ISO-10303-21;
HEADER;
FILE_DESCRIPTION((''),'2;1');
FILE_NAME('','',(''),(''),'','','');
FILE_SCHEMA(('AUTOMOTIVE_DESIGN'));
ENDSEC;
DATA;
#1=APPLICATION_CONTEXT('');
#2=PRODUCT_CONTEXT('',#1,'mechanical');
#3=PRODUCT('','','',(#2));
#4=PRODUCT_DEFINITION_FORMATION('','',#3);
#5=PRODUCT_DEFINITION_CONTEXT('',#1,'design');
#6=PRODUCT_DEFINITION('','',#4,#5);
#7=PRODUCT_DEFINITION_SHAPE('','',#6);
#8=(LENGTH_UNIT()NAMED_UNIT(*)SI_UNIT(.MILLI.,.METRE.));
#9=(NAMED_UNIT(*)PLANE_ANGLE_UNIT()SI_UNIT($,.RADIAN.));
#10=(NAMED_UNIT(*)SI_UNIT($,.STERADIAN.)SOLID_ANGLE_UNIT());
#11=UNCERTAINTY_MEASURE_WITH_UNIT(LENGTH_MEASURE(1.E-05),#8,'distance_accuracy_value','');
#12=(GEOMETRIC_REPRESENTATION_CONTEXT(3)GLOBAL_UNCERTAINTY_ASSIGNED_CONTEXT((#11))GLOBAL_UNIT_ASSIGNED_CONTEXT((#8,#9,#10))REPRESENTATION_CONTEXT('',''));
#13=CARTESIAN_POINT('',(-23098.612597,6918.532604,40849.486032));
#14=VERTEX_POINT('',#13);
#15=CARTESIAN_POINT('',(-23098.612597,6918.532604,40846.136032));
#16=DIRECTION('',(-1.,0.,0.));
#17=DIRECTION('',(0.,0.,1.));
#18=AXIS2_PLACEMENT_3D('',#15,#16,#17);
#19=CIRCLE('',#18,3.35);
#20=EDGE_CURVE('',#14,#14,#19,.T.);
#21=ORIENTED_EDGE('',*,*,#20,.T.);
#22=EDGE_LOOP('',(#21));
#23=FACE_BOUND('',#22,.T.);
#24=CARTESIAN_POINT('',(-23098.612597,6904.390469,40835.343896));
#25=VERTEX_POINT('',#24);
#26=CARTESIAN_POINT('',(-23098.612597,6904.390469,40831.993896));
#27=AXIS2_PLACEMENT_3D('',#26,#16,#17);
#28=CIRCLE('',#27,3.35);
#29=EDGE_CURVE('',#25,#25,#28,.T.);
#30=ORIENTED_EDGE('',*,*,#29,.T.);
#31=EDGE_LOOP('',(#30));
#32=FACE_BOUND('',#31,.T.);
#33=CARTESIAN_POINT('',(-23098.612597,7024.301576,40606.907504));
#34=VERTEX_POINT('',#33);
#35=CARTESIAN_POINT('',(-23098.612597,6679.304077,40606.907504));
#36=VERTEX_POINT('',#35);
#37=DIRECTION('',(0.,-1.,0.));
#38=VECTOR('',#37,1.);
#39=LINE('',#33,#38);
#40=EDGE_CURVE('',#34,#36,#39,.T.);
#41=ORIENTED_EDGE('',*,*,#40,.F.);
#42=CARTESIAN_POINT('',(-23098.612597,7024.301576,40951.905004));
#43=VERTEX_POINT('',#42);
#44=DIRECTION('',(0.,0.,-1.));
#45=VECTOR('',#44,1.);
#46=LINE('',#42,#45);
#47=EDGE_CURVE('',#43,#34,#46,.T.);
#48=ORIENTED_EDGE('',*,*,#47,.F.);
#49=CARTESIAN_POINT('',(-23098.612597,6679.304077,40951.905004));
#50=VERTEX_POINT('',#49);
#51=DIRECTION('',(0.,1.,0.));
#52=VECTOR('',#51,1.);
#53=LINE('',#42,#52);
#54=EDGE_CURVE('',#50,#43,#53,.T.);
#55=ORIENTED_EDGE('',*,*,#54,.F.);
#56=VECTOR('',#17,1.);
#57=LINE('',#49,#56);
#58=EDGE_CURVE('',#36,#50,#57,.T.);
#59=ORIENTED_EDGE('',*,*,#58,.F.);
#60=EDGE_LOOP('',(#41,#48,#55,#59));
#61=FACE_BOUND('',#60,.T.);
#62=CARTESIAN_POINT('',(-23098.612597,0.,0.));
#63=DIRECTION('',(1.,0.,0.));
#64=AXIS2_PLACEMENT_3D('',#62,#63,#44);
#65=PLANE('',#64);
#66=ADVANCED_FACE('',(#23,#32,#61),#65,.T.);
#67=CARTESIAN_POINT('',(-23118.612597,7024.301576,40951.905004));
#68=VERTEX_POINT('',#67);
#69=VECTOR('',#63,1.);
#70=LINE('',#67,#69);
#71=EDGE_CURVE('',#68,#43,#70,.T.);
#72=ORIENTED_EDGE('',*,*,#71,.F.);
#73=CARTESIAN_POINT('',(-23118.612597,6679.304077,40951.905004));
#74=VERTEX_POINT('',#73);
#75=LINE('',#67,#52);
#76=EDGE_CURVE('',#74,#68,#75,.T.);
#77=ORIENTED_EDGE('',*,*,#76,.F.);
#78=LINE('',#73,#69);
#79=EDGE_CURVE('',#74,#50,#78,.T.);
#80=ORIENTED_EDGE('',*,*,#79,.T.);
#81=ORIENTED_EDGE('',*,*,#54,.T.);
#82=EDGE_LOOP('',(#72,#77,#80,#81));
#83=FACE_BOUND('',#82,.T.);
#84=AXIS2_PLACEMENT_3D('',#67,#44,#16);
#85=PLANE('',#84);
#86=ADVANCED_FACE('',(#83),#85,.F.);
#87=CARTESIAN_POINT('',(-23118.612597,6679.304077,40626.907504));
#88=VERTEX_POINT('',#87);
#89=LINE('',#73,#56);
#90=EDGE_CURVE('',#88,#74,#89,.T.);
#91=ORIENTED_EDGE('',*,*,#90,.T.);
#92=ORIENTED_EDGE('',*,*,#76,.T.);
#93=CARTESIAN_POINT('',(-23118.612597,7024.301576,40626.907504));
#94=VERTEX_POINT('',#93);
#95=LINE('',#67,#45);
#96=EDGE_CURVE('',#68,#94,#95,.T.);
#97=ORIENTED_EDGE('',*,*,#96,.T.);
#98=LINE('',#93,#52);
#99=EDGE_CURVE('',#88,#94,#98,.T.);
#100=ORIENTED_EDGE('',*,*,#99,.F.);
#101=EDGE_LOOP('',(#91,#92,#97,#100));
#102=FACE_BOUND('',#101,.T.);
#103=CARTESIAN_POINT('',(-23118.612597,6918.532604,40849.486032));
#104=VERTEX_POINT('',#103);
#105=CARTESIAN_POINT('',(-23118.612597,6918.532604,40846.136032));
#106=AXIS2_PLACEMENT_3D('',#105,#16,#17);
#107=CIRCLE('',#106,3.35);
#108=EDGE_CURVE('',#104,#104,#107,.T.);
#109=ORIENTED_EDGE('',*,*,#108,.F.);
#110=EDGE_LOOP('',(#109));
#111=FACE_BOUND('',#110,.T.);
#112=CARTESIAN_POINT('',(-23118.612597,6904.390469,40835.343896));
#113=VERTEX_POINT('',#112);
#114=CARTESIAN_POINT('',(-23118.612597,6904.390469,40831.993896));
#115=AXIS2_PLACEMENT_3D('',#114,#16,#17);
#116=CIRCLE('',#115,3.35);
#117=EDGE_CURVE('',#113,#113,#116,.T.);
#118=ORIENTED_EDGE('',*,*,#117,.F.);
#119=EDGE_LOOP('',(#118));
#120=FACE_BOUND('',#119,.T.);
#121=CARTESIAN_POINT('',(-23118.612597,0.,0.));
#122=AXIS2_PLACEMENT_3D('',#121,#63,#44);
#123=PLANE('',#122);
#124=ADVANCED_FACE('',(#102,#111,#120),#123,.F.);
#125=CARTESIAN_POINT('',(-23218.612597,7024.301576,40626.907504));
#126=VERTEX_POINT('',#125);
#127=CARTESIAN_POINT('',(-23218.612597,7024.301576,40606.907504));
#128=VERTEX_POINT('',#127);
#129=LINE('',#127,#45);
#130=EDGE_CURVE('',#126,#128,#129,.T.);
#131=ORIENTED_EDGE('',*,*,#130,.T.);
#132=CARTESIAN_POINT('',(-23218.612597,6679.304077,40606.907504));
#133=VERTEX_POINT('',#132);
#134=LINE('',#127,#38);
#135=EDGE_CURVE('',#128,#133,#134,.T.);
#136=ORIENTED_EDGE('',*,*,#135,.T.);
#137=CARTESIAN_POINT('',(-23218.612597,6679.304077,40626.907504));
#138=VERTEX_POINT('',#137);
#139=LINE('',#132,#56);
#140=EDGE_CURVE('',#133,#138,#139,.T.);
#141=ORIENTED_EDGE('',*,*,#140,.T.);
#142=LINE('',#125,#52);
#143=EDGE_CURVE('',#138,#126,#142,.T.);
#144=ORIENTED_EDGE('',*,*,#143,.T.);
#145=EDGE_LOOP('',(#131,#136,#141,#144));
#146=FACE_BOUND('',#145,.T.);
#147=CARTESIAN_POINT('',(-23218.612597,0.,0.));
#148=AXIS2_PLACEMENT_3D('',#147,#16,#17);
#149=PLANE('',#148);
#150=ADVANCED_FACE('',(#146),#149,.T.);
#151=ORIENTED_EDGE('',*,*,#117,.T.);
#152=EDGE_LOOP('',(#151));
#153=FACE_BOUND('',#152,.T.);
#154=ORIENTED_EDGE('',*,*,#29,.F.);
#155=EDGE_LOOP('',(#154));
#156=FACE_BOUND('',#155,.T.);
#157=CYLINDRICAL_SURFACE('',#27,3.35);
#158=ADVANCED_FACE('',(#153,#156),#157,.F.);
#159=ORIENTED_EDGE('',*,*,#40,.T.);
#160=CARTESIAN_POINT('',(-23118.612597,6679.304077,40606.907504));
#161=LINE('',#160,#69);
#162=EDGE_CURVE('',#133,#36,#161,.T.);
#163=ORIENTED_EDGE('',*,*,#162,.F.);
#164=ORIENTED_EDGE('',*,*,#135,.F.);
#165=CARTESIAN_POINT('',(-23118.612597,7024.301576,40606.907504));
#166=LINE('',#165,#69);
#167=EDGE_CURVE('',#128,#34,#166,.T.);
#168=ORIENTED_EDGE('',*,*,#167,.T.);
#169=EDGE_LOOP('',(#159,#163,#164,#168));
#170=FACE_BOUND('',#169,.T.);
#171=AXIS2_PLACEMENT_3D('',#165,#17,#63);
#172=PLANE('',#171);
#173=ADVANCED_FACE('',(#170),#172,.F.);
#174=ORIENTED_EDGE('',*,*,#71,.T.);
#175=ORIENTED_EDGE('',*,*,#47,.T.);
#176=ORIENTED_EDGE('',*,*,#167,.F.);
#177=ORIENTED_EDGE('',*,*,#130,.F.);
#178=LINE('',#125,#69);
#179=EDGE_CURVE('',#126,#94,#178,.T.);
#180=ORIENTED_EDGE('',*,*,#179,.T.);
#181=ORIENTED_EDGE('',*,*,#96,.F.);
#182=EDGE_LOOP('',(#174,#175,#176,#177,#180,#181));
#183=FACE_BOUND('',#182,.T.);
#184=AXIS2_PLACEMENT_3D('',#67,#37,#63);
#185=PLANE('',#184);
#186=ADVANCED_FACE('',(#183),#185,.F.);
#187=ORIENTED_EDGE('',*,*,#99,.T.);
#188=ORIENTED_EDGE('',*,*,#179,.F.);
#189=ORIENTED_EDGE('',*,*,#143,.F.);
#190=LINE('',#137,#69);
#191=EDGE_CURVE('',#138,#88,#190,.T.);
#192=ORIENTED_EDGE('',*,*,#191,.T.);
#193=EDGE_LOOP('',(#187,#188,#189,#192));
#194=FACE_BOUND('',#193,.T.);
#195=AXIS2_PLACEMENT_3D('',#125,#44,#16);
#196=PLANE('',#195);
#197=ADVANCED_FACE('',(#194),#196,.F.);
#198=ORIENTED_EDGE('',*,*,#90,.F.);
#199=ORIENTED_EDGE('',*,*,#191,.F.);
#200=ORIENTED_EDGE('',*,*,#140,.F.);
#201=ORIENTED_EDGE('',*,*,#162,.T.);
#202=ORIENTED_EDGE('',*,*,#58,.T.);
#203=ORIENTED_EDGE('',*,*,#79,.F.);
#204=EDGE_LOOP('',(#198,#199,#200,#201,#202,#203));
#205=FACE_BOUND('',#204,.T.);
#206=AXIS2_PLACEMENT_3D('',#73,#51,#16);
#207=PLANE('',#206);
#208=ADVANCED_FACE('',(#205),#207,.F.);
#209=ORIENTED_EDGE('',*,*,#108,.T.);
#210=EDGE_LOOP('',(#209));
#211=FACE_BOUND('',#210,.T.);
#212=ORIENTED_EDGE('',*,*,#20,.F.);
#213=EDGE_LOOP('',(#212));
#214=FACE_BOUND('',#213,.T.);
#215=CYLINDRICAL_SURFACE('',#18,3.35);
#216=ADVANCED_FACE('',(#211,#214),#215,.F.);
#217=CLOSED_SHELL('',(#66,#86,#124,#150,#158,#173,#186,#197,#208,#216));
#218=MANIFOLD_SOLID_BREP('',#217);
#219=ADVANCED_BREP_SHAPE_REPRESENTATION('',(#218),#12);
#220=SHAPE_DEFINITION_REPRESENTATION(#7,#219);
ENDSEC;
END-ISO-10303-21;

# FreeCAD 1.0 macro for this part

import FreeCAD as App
import Part
import Sketcher

V = App.Vector
Q = App.Units.Quantity

doc = App.newDocument("Part")
body = doc.addObject("PartDesign::Body", "Body")

# Sketch on YZ plane
sketch1 = doc.addObject("Sketcher::SketchObject", "Sketch")
body.addObject(sketch1)
sketch1.AttachmentSupport = (doc.YZ_Plane, [""])
sketch1.MapMode = "FlatFace"
sketch1.AttachmentOffset = App.Placement(V(0, 0, -23098.612597), App.Rotation())
sketch1.addGeometry([
    Part.LineSegment(V(7024, 40607, 0), V(6679, 40607, 0)),
    Part.LineSegment(V(6679, 40607, 0), V(6679, 40952, 0)),
    Part.LineSegment(V(6679, 40952, 0), V(7024, 40952, 0)),
    Part.LineSegment(V(7024, 40952, 0), V(7024, 40607, 0)),
], False)
sketch1.addConstraint([
    Sketcher.Constraint("Coincident", 0, 2, 1, 1),
    Sketcher.Constraint("Coincident", 1, 2, 2, 1),
    Sketcher.Constraint("Coincident", 2, 2, 3, 1),
    Sketcher.Constraint("Coincident", 3, 2, 0, 1),
    Sketcher.Constraint("Horizontal", 0),
    Sketcher.Constraint("Vertical", 1),
    Sketcher.Constraint("Horizontal", 2),
    Sketcher.Constraint("Vertical", 3),
    Sketcher.Constraint("Equal", 2, 1),
    Sketcher.Constraint("DistanceX", 0, 2, 0, 1, Q("344.997499 mm")),
    Sketcher.Constraint("DistanceX", -1, 1, 0, 2, Q("6679.304077 mm")),
    Sketcher.Constraint("DistanceY", -1, 1, 0, 2, Q("40606.907504 mm")),
])
pad1 = doc.addObject("PartDesign::Pad", "Pad")
body.addObject(pad1)
pad1.Profile = sketch1
pad1.Length = 20
pad1.Reversed = True

# Sketch on YZ plane
sketch2 = doc.addObject("Sketcher::SketchObject", "Sketch001")
body.addObject(sketch2)
sketch2.AttachmentSupport = (doc.YZ_Plane, [""])
sketch2.MapMode = "FlatFace"
sketch2.AttachmentOffset = App.Placement(V(0, 0, -23118.612597), App.Rotation())
sketch2.addGeometry([
    Part.Circle(V(6918.5, 40846.1, 0), V(0, 0, 1), 3.3),
    Part.Circle(V(6904.4, 40832, 0), V(0, 0, 1), 3.3),
], False)
sketch2.addConstraint([
    Sketcher.Constraint("Equal", 0, 1),
    Sketcher.Constraint("Diameter", 0, Q("6.7 mm")),
    Sketcher.Constraint("DistanceY", -1, 1, 0, 3, Q("40846.136032 mm")),
    Sketcher.Constraint("DistanceX", -1, 1, 1, 3, Q("6904.390469 mm")),
    Sketcher.Constraint("DistanceX", -1, 1, 0, 3, Q("6918.532604 mm")),
    Sketcher.Constraint("DistanceY", -1, 1, 1, 3, Q("40831.993896 mm")),
])
pocket1 = doc.addObject("PartDesign::Pocket", "Pocket")
body.addObject(pocket1)
pocket1.Profile = sketch2
pocket1.Type = "ThroughAll"
pocket1.Reversed = True

# Sketch on YZ plane
sketch3 = doc.addObject("Sketcher::SketchObject", "Sketch002")
body.addObject(sketch3)
sketch3.AttachmentSupport = (doc.YZ_Plane, [""])
sketch3.MapMode = "FlatFace"
sketch3.AttachmentOffset = App.Placement(V(0, 0, -23118.612597), App.Rotation())
sketch3.addGeometry([
    Part.LineSegment(V(7024, 40607, 0), V(6679, 40607, 0)),
    Part.LineSegment(V(6679, 40607, 0), V(6679, 40627, 0)),
    Part.LineSegment(V(6679, 40627, 0), V(7024, 40627, 0)),
    Part.LineSegment(V(7024, 40627, 0), V(7024, 40607, 0)),
], False)
sketch3.addConstraint([
    Sketcher.Constraint("Coincident", 0, 2, 1, 1),
    Sketcher.Constraint("Coincident", 1, 2, 2, 1),
    Sketcher.Constraint("Coincident", 2, 2, 3, 1),
    Sketcher.Constraint("Coincident", 3, 2, 0, 1),
    Sketcher.Constraint("Horizontal", 0),
    Sketcher.Constraint("Vertical", 1),
    Sketcher.Constraint("Horizontal", 2),
    Sketcher.Constraint("Vertical", 3),
    Sketcher.Constraint("DistanceY", 1, 1, 1, 2, Q("20 mm")),
    Sketcher.Constraint("DistanceX", 0, 2, 0, 1, Q("344.997499 mm")),
    Sketcher.Constraint("DistanceX", -1, 1, 0, 2, Q("6679.304077 mm")),
    Sketcher.Constraint("DistanceY", -1, 1, 0, 2, Q("40606.907504 mm")),
])
pad2 = doc.addObject("PartDesign::Pad", "Pad001")
body.addObject(pad2)
pad2.Profile = sketch3
pad2.Length = 100
pad2.Reversed = True

doc.recompute()
